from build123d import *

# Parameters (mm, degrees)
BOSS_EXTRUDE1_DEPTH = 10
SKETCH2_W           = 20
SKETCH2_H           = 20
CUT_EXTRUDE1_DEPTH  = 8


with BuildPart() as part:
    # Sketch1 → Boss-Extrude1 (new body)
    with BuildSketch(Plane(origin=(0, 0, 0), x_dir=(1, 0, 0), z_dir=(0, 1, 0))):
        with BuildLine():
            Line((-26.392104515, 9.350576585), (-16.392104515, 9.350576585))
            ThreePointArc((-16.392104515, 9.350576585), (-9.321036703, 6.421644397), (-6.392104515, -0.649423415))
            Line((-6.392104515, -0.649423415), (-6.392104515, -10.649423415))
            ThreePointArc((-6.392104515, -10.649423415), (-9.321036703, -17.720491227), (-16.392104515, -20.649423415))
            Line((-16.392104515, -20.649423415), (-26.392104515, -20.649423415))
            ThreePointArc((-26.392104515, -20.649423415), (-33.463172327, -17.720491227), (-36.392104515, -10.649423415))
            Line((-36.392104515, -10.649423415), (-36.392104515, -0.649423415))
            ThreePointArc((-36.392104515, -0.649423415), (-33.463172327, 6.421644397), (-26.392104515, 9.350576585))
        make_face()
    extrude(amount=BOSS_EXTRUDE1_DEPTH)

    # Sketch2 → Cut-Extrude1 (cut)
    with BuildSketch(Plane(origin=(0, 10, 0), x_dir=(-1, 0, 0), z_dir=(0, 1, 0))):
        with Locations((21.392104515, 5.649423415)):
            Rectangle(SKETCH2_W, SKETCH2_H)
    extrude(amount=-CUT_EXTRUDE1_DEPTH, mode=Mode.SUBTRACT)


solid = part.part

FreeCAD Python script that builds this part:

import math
import FreeCAD as App
import Part
import Sketcher
Q = App.Units.Quantity


def add_polygon(sketch, points):
    """Adds a closed chain of lines whose ends are joined by coincident constraints."""
    first, n = sketch.GeometryCount, len(points)
    for a, b in zip(points, points[1:] + points[:1]):
        sketch.addGeometry(Part.LineSegment(App.Vector(*a, 0), App.Vector(*b, 0)), False)
    for i in range(n):
        sketch.addConstraint(Sketcher.Constraint("Coincident", first + i, 2, first + (i + 1) % n, 1))

doc = App.newDocument("Part")
params = doc.addObject("Spreadsheet::Sheet", "Params")
for row, (alias, value) in enumerate([
    ("sketch1_radius", "10 mm"),
    ("sketch1_width", "10 mm"),
    ("pad1_length", "10 mm"),
    ("sketch2_width", "20 mm"),
    ("pocket1_length", "8 mm"),
], start=1):
    params.set(f"A{row}", alias)
    params.set(f"B{row}", "=" + value)
    params.setAlias(f"B{row}", alias)

body = doc.addObject("PartDesign::Body", "Body")

sketch1 = body.newObject("Sketcher::SketchObject", "Sketch")
sketch1.AttachmentSupport = (doc.getObject("XZ_Plane"), [""])
sketch1.MapMode = "FlatFace"
sketch1.addGeometry(Part.LineSegment(App.Vector(-16.392105, -9.350577, 0), App.Vector(-26.392105, -9.350577, 0)), False)
sketch1.addGeometry(Part.ArcOfCircle(Part.Circle(App.Vector(-26.392105, 0.649423, 0), App.Vector(0, 0, 1), 10), math.radians(180), math.radians(270)), False)
sketch1.addGeometry(Part.LineSegment(App.Vector(-36.392105, 0.649423, 0), App.Vector(-36.392105, 10.649423, 0)), False)
sketch1.addGeometry(Part.ArcOfCircle(Part.Circle(App.Vector(-26.392105, 10.649423, 0), App.Vector(0, 0, 1), 10), math.radians(90), math.radians(180)), False)
sketch1.addGeometry(Part.LineSegment(App.Vector(-26.392105, 20.649423, 0), App.Vector(-16.392105, 20.649423, 0)), False)
sketch1.addGeometry(Part.ArcOfCircle(Part.Circle(App.Vector(-16.392105, 10.649423, 0), App.Vector(0, 0, 1), 10), math.radians(0), math.radians(90)), False)
sketch1.addGeometry(Part.LineSegment(App.Vector(-6.392105, 10.649423, 0), App.Vector(-6.392105, 0.649423, 0)), False)
sketch1.addGeometry(Part.ArcOfCircle(Part.Circle(App.Vector(-16.392105, 0.649423, 0), App.Vector(0, 0, 1), 10), math.radians(-90), math.radians(0)), False)
sketch1.addConstraint(Sketcher.Constraint("Tangent", 0, 2, 1, 2))
sketch1.addConstraint(Sketcher.Constraint("Tangent", 1, 1, 2, 1))
sketch1.addConstraint(Sketcher.Constraint("Tangent", 2, 2, 3, 2))
sketch1.addConstraint(Sketcher.Constraint("Tangent", 3, 1, 4, 1))
sketch1.addConstraint(Sketcher.Constraint("Tangent", 4, 2, 5, 2))
sketch1.addConstraint(Sketcher.Constraint("Tangent", 5, 1, 6, 1))
sketch1.addConstraint(Sketcher.Constraint("Tangent", 6, 2, 7, 2))
sketch1.addConstraint(Sketcher.Constraint("Tangent", 7, 1, 0, 1))
sketch1.addConstraint(Sketcher.Constraint("Horizontal", 0))
sketch1.addConstraint(Sketcher.Constraint("Vertical", 2))
sketch1.addConstraint(Sketcher.Constraint("Horizontal", 4))
sketch1.addConstraint(Sketcher.Constraint("Vertical", 6))
sketch1.addConstraint(Sketcher.Constraint("Equal", 1, 3))
sketch1.addConstraint(Sketcher.Constraint("Equal", 3, 5))
sketch1.addConstraint(Sketcher.Constraint("Equal", 5, 7))
sketch1.addConstraint(Sketcher.Constraint("Equal", 4, 2))
sketch1.addConstraint(Sketcher.Constraint("Radius", 1, Q("10 mm")))
sketch1.addConstraint(Sketcher.Constraint("DistanceX", 0, 2, 0, 1, Q("10 mm")))
sketch1.addConstraint(Sketcher.Constraint("DistanceX", 1, 3, -1, 1, Q("26.392105 mm")))
sketch1.addConstraint(Sketcher.Constraint("DistanceY", -1, 1, 1, 3, Q("0.649423 mm")))
sketch1.setExpression("Constraints[16]", "Params.sketch1_radius")
sketch1.setExpression("Constraints[17]", "Params.sketch1_width")
pad1 = body.newObject("PartDesign::Pad", "Pad")
pad1.Profile = sketch1
pad1.setExpression("Length", "Params.pad1_length")
pad1.Reversed = True

sketch2 = body.newObject("Sketcher::SketchObject", "Sketch001")
sketch2.AttachmentSupport = (doc.getObject("XZ_Plane"), [""])
sketch2.MapMode = "FlatFace"
sketch2.AttachmentOffset = App.Placement(App.Vector(0, 0, -10), App.Rotation())
add_polygon(sketch2, [(-11.392105, 15.649423), (-11.392105, -4.350577), (-31.392105, -4.350577), (-31.392105, 15.649423)])
sketch2.addConstraint(Sketcher.Constraint("Vertical", 0))
sketch2.addConstraint(Sketcher.Constraint("Horizontal", 1))
sketch2.addConstraint(Sketcher.Constraint("Vertical", 2))
sketch2.addConstraint(Sketcher.Constraint("Horizontal", 3))
sketch2.addConstraint(Sketcher.Constraint("Equal", 3, 0))
sketch2.addConstraint(Sketcher.Constraint("DistanceX", 1, 2, 1, 1, Q("20 mm")))
sketch2.addConstraint(Sketcher.Constraint("DistanceX", 0, 2, -1, 1, Q("11.392105 mm")))
sketch2.addConstraint(Sketcher.Constraint("DistanceY", 0, 2, -1, 1, Q("4.350577 mm")))
sketch2.setExpression("Constraints[9]", "Params.sketch2_width")
pocket1 = body.newObject("PartDesign::Pocket", "Pocket")
pocket1.Profile = sketch2
pocket1.setExpression("Length", "Params.pocket1_length")
pocket1.Reversed = True

doc.recompute()
